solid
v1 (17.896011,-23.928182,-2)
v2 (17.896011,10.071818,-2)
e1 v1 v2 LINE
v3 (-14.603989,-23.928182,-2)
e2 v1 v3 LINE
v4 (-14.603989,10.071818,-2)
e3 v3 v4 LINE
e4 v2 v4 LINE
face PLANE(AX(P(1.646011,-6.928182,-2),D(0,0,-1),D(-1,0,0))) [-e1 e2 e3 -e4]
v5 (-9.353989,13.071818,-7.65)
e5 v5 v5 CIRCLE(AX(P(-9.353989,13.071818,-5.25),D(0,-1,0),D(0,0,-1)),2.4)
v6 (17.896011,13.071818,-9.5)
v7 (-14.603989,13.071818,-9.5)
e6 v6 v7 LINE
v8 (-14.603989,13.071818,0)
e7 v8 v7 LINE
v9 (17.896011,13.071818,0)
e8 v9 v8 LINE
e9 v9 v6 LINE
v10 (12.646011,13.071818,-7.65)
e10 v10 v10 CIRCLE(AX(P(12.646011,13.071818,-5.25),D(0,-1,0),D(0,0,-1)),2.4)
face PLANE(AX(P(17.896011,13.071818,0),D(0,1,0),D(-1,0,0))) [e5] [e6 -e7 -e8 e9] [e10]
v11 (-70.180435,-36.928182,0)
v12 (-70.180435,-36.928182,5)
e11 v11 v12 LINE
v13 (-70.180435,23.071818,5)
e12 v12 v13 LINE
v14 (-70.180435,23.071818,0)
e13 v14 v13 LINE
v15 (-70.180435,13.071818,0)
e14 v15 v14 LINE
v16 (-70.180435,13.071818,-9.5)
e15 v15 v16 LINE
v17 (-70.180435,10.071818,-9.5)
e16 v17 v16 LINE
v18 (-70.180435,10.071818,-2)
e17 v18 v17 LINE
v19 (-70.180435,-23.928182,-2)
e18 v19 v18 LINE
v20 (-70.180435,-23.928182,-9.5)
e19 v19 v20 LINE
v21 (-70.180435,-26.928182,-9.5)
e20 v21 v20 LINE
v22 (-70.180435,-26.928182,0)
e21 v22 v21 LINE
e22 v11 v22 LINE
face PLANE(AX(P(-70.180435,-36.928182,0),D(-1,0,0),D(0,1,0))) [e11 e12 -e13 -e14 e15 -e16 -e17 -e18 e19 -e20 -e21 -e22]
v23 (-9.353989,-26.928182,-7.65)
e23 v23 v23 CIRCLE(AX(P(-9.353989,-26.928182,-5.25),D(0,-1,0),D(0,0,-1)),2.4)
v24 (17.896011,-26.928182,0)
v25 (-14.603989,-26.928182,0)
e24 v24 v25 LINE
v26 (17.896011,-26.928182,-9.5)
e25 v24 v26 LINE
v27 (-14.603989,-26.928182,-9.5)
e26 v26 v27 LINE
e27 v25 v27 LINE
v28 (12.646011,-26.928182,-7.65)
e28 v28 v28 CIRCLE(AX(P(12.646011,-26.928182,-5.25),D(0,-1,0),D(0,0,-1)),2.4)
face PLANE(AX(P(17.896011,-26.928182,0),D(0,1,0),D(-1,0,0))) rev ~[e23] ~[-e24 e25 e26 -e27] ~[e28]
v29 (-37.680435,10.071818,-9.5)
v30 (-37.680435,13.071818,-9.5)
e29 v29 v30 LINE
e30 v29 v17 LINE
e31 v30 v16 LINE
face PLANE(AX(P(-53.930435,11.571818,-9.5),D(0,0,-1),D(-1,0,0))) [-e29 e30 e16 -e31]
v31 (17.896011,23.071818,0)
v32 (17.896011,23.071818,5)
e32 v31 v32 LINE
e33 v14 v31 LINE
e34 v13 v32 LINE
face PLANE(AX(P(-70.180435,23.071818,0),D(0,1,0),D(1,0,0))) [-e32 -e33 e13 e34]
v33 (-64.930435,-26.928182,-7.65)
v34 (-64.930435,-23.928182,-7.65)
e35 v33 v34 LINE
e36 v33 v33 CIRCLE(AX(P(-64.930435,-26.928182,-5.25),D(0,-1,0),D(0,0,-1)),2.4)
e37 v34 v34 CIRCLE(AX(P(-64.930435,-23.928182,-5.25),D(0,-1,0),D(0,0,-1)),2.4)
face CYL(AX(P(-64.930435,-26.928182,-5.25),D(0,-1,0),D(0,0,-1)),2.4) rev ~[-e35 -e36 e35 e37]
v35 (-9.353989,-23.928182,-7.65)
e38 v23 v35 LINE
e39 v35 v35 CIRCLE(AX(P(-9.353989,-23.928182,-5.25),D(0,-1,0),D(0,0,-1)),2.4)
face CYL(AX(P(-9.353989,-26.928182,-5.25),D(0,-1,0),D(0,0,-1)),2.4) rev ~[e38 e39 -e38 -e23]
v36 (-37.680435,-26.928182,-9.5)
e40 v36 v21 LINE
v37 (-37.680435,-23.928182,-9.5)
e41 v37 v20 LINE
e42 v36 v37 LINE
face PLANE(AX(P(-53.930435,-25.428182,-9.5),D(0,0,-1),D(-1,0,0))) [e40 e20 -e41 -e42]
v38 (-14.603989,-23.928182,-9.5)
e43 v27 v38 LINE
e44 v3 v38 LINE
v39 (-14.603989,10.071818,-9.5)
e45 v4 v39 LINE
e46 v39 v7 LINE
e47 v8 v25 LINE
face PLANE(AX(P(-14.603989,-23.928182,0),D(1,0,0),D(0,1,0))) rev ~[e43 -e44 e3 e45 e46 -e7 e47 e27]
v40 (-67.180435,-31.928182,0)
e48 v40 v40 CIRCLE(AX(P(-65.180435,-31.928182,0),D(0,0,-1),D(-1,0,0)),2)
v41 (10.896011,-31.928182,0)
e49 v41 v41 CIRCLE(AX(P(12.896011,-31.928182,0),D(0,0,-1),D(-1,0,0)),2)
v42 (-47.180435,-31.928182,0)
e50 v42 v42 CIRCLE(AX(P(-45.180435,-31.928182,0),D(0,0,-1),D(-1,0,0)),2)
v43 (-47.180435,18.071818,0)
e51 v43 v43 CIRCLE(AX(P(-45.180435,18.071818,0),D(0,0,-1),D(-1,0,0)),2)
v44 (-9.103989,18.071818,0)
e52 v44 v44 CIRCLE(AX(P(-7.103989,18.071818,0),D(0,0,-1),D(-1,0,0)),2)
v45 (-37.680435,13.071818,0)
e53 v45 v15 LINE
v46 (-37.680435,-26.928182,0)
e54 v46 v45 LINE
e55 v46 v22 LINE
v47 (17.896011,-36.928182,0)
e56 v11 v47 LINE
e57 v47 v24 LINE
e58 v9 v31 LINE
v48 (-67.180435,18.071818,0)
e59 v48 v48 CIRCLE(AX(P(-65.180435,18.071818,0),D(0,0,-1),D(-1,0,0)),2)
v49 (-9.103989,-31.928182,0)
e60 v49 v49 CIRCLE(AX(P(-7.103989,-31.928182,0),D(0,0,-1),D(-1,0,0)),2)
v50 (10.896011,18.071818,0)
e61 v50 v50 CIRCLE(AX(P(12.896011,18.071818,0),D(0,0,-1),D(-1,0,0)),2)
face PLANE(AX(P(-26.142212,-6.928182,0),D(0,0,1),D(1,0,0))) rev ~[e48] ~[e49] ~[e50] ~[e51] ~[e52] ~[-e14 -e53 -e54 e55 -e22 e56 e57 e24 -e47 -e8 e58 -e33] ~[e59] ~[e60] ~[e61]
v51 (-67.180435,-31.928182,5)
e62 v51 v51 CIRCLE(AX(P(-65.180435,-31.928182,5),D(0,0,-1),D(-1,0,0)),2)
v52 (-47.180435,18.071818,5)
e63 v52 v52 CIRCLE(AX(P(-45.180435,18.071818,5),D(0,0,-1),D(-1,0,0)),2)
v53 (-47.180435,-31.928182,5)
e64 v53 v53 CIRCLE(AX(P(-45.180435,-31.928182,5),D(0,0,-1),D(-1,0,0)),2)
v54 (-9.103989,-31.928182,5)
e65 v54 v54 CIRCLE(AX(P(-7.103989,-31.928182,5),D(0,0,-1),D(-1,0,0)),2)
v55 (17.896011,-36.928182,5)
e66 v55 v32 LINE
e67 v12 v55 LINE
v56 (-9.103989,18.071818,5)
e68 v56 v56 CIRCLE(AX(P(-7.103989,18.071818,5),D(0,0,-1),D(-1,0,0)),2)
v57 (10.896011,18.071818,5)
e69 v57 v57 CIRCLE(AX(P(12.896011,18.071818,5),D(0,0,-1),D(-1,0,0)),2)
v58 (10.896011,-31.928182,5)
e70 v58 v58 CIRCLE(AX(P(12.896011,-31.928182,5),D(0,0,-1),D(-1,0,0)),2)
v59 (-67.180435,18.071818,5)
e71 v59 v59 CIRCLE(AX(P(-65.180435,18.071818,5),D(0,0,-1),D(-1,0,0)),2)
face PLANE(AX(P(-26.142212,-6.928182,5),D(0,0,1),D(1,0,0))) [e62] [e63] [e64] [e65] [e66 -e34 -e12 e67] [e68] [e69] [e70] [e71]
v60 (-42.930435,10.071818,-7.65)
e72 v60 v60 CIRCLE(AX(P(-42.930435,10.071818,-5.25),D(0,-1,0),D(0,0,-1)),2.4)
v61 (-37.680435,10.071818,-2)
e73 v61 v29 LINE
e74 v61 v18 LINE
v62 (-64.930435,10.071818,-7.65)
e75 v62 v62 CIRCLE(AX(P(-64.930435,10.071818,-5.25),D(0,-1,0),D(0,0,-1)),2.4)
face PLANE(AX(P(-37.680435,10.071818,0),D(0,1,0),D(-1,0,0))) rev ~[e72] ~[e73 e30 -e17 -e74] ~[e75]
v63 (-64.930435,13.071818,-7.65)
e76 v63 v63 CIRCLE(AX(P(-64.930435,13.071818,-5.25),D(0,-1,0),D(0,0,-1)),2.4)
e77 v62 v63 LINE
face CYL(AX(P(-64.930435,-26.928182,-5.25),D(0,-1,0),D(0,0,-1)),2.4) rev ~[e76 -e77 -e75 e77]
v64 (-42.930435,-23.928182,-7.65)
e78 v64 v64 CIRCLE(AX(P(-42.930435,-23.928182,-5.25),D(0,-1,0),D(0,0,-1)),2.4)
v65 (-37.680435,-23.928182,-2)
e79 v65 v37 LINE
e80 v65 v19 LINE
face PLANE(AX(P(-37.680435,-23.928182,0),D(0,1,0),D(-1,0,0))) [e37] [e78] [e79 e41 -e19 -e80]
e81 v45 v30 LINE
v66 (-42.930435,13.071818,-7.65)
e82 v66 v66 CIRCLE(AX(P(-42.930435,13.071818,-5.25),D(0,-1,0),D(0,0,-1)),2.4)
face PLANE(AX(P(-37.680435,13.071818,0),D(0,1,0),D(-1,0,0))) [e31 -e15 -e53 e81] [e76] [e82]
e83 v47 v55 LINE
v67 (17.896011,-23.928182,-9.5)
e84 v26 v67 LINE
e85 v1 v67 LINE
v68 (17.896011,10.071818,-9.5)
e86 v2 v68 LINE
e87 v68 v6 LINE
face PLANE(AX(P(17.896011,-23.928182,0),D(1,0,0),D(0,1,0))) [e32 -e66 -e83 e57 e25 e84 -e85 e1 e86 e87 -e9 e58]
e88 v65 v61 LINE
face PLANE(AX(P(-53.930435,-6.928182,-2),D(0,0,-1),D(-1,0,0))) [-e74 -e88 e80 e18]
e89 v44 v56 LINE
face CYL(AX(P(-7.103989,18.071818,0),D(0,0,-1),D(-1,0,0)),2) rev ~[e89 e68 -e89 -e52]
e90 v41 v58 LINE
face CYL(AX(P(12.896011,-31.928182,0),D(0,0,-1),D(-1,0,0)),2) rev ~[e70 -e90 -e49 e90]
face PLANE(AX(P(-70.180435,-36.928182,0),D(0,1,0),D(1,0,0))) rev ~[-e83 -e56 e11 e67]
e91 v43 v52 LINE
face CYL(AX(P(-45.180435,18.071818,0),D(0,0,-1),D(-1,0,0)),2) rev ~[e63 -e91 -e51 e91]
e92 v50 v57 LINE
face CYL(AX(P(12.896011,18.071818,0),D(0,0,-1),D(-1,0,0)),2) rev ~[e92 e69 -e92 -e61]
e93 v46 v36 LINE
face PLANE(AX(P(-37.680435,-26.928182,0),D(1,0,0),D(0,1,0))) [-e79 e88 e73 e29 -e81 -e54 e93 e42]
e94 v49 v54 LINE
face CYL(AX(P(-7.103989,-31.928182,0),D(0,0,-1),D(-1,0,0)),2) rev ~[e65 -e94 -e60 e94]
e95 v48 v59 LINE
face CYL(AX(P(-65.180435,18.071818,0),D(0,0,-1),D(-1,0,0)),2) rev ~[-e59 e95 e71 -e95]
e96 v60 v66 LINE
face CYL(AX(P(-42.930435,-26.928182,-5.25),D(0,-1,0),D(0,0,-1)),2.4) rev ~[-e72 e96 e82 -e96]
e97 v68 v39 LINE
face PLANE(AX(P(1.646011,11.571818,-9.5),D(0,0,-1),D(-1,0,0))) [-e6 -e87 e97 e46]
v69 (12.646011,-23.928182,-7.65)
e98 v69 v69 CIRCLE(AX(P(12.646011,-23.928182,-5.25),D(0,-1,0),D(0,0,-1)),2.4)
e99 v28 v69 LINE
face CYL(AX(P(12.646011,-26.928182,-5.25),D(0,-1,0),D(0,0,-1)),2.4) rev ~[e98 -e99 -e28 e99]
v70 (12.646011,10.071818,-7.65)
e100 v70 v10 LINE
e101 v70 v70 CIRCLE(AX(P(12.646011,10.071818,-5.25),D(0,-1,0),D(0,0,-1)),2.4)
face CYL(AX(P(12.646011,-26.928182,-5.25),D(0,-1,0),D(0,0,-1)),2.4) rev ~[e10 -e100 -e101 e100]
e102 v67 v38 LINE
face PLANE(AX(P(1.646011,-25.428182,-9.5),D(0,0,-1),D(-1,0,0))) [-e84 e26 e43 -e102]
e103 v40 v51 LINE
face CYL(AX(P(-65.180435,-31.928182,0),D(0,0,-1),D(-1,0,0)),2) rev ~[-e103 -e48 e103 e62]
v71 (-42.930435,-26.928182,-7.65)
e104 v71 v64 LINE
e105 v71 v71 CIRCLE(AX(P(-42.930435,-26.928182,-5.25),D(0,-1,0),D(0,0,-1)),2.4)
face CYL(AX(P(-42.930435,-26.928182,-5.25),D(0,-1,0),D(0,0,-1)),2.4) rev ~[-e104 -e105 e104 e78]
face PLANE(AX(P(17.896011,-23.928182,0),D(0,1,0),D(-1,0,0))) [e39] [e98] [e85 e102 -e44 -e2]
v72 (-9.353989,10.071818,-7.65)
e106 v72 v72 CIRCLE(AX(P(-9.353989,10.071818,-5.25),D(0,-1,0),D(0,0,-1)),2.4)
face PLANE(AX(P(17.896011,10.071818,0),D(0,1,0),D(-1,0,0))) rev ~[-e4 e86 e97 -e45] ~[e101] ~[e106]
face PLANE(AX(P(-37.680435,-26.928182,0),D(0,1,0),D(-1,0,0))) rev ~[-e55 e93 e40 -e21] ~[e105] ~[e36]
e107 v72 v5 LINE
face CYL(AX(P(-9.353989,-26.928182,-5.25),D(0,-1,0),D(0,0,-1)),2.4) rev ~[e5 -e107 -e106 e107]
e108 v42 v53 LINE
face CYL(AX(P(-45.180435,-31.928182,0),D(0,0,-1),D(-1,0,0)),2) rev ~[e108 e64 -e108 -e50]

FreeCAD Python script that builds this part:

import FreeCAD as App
import Part
import Sketcher
Q = App.Units.Quantity

doc = App.newDocument("Part")
body = doc.addObject("PartDesign::Body", "Body")

# Sketch on XY plane
sketch1 = body.newObject("Sketcher::SketchObject", "Sketch")
sketch1.AttachmentSupport = (doc.getObject("XY_Plane"), [""])
sketch1.MapMode = "FlatFace"
sketch1.addGeometry(Part.LineSegment(App.Vector(-70, 23, 0), App.Vector(-70, -37, 0)), False)
sketch1.addGeometry(Part.LineSegment(App.Vector(-70, -37, 0), App.Vector(18, -37, 0)), False)
sketch1.addGeometry(Part.LineSegment(App.Vector(18, -37, 0), App.Vector(18, 23, 0)), False)
sketch1.addGeometry(Part.LineSegment(App.Vector(18, 23, 0), App.Vector(-70, 23, 0)), False)
sketch1.addConstraint(Sketcher.Constraint("Coincident", 0, 2, 1, 1))
sketch1.addConstraint(Sketcher.Constraint("Coincident", 1, 2, 2, 1))
sketch1.addConstraint(Sketcher.Constraint("Coincident", 2, 2, 3, 1))
sketch1.addConstraint(Sketcher.Constraint("Coincident", 3, 2, 0, 1))
sketch1.addConstraint(Sketcher.Constraint("Vertical", 0))
sketch1.addConstraint(Sketcher.Constraint("Horizontal", 1))
sketch1.addConstraint(Sketcher.Constraint("Vertical", 2))
sketch1.addConstraint(Sketcher.Constraint("Horizontal", 3))
sketch1.addConstraint(Sketcher.Constraint("DistanceY", 0, 2, 0, 1, Q("60 mm")))
sketch1.addConstraint(Sketcher.Constraint("DistanceX", 1, 1, 1, 2, Q("88.076447 mm")))
sketch1.addConstraint(Sketcher.Constraint("DistanceY", 0, 2, -1, 1, Q("36.928182 mm")))
sketch1.addConstraint(Sketcher.Constraint("DistanceX", -1, 1, 1, 2, Q("17.896011 mm")))
pad1 = body.newObject("PartDesign::Pad", "Pad")
pad1.Profile = sketch1
pad1.Length = 5

# Sketch on XY plane
sketch2 = body.newObject("Sketcher::SketchObject", "Sketch001")
sketch2.AttachmentSupport = (doc.getObject("XY_Plane"), [""])
sketch2.MapMode = "FlatFace"
sketch2.addGeometry(Part.LineSegment(App.Vector(17.9, 13.1, 0), App.Vector(17.9, 10.1, 0)), False)
sketch2.addGeometry(Part.LineSegment(App.Vector(17.9, 10.1, 0), App.Vector(-14.6, 10.1, 0)), False)
sketch2.addGeometry(Part.LineSegment(App.Vector(-14.6, 10.1, 0), App.Vector(-14.6, 13.1, 0)), False)
sketch2.addGeometry(Part.LineSegment(App.Vector(-14.6, 13.1, 0), App.Vector(17.9, 13.1, 0)), False)
sketch2.addGeometry(Part.LineSegment(App.Vector(-37.7, 13.1, 0), App.Vector(-37.7, 10.1, 0)), False)
sketch2.addGeometry(Part.LineSegment(App.Vector(-37.7, 10.1, 0), App.Vector(-70.2, 10.1, 0)), False)
sketch2.addGeometry(Part.LineSegment(App.Vector(-70.2, 10.1, 0), App.Vector(-70.2, 13.1, 0)), False)
sketch2.addGeometry(Part.LineSegment(App.Vector(-70.2, 13.1, 0), App.Vector(-37.7, 13.1, 0)), False)
sketch2.addGeometry(Part.LineSegment(App.Vector(17.9, -23.9, 0), App.Vector(17.9, -26.9, 0)), False)
sketch2.addGeometry(Part.LineSegment(App.Vector(17.9, -26.9, 0), App.Vector(-14.6, -26.9, 0)), False)
sketch2.addGeometry(Part.LineSegment(App.Vector(-14.6, -26.9, 0), App.Vector(-14.6, -23.9, 0)), False)
sketch2.addGeometry(Part.LineSegment(App.Vector(-14.6, -23.9, 0), App.Vector(17.9, -23.9, 0)), False)
sketch2.addGeometry(Part.LineSegment(App.Vector(-37.7, -23.9, 0), App.Vector(-37.7, -26.9, 0)), False)
sketch2.addGeometry(Part.LineSegment(App.Vector(-37.7, -26.9, 0), App.Vector(-70.2, -26.9, 0)), False)
sketch2.addGeometry(Part.LineSegment(App.Vector(-70.2, -26.9, 0), App.Vector(-70.2, -23.9, 0)), False)
sketch2.addGeometry(Part.LineSegment(App.Vector(-70.2, -23.9, 0), App.Vector(-37.7, -23.9, 0)), False)
sketch2.addConstraint(Sketcher.Constraint("Coincident", 0, 2, 1, 1))
sketch2.addConstraint(Sketcher.Constraint("Coincident", 1, 2, 2, 1))
sketch2.addConstraint(Sketcher.Constraint("Coincident", 2, 2, 3, 1))
sketch2.addConstraint(Sketcher.Constraint("Coincident", 3, 2, 0, 1))
sketch2.addConstraint(Sketcher.Constraint("Coincident", 4, 2, 5, 1))
sketch2.addConstraint(Sketcher.Constraint("Coincident", 5, 2, 6, 1))
sketch2.addConstraint(Sketcher.Constraint("Coincident", 6, 2, 7, 1))
sketch2.addConstraint(Sketcher.Constraint("Coincident", 7, 2, 4, 1))
sketch2.addConstraint(Sketcher.Constraint("Coincident", 8, 2, 9, 1))
sketch2.addConstraint(Sketcher.Constraint("Coincident", 9, 2, 10, 1))
sketch2.addConstraint(Sketcher.Constraint("Coincident", 10, 2, 11, 1))
sketch2.addConstraint(Sketcher.Constraint("Coincident", 11, 2, 8, 1))
sketch2.addConstraint(Sketcher.Constraint("Coincident", 12, 2, 13, 1))
sketch2.addConstraint(Sketcher.Constraint("Coincident", 13, 2, 14, 1))
sketch2.addConstraint(Sketcher.Constraint("Coincident", 14, 2, 15, 1))
sketch2.addConstraint(Sketcher.Constraint("Coincident", 15, 2, 12, 1))
sketch2.addConstraint(Sketcher.Constraint("Vertical", 0))
sketch2.addConstraint(Sketcher.Constraint("Horizontal", 1))
sketch2.addConstraint(Sketcher.Constraint("Vertical", 2))
sketch2.addConstraint(Sketcher.Constraint("Horizontal", 3))
sketch2.addConstraint(Sketcher.Constraint("Vertical", 4))
sketch2.addConstraint(Sketcher.Constraint("Horizontal", 5))
sketch2.addConstraint(Sketcher.Constraint("Vertical", 6))
sketch2.addConstraint(Sketcher.Constraint("Horizontal", 7))
sketch2.addConstraint(Sketcher.Constraint("Vertical", 8))
sketch2.addConstraint(Sketcher.Constraint("Horizontal", 9))
sketch2.addConstraint(Sketcher.Constraint("Vertical", 10))
sketch2.addConstraint(Sketcher.Constraint("Horizontal", 11))
sketch2.addConstraint(Sketcher.Constraint("Vertical", 12))
sketch2.addConstraint(Sketcher.Constraint("Horizontal", 13))
sketch2.addConstraint(Sketcher.Constraint("Vertical", 14))
sketch2.addConstraint(Sketcher.Constraint("Horizontal", 15))
sketch2.addConstraint(Sketcher.Constraint("Horizontal", 1, 2, 4, 2))
sketch2.addConstraint(Sketcher.Constraint("Horizontal", 3, 2, 6, 2))
sketch2.addConstraint(Sketcher.Constraint("Horizontal", 9, 2, 12, 2))
sketch2.addConstraint(Sketcher.Constraint("Horizontal", 11, 2, 14, 2))
sketch2.addConstraint(Sketcher.Constraint("Vertical", 3, 2, 8, 2))
sketch2.addConstraint(Sketcher.Constraint("Vertical", 2, 2, 9, 2))
sketch2.addConstraint(Sketcher.Constraint("Vertical", 7, 2, 12, 2))
sketch2.addConstraint(Sketcher.Constraint("Vertical", 6, 2, 13, 2))
sketch2.addConstraint(Sketcher.Constraint("Equal", 3, 5))
sketch2.addConstraint(Sketcher.Constraint("Equal", 6, 8))
sketch2.addConstraint(Sketcher.Constraint("DistanceY", 0, 2, 0, 1, Q("3 mm")))
sketch2.addConstraint(Sketcher.Constraint("DistanceX", 1, 2, 1, 1, Q("32.5 mm")))
sketch2.addConstraint(Sketcher.Constraint("DistanceY", 8, 2, 0, 2, Q("37 mm")))
sketch2.addConstraint(Sketcher.Constraint("DistanceX", -1, 1, 0, 2, Q("17.896011 mm")))
sketch2.addConstraint(Sketcher.Constraint("DistanceY", -1, 1, 0, 2, Q("10.071818 mm")))
sketch2.addConstraint(Sketcher.Constraint("DistanceX", 4, 2, -1, 1, Q("37.680435 mm")))
pad2 = body.newObject("PartDesign::Pad", "Pad001")
pad2.Profile = sketch2
pad2.Length = 9.5
pad2.Reversed = True

# Sketch on XZ plane
sketch3 = body.newObject("Sketcher::SketchObject", "Sketch002")
sketch3.AttachmentSupport = (doc.getObject("XZ_Plane"), [""])
sketch3.MapMode = "FlatFace"
sketch3.AttachmentOffset = App.Placement(App.Vector(0, 0, 26.928182), App.Rotation())
sketch3.addGeometry(Part.Circle(App.Vector(12.6, -5.2, 0), App.Vector(0, 0, 1), 2.4), False)
sketch3.addGeometry(Part.Circle(App.Vector(-9.4, -5.2, 0), App.Vector(0, 0, 1), 2.4), False)
sketch3.addGeometry(Part.Circle(App.Vector(-42.9, -5.2, 0), App.Vector(0, 0, 1), 2.4), False)
sketch3.addGeometry(Part.Circle(App.Vector(-64.9, -5.2, 0), App.Vector(0, 0, 1), 2.4), False)
sketch3.addConstraint(Sketcher.Constraint("Equal", 0, 1))
sketch3.addConstraint(Sketcher.Constraint("Equal", 1, 2))
sketch3.addConstraint(Sketcher.Constraint("Equal", 2, 3))
sketch3.addConstraint(Sketcher.Constraint("Horizontal", 0, 3, 1, 3))
sketch3.addConstraint(Sketcher.Constraint("Horizontal", 1, 3, 2, 3))
sketch3.addConstraint(Sketcher.Constraint("Horizontal", 2, 3, 3, 3))
sketch3.addConstraint(Sketcher.Constraint("Diameter", 0, Q("4.8 mm")))
sketch3.addConstraint(Sketcher.Constraint("DistanceX", 1, 3, 0, 3, Q("22 mm")))
sketch3.addConstraint(Sketcher.Constraint("DistanceX", 3, 3, 2, 3, Q("22 mm")))
sketch3.addConstraint(Sketcher.Constraint("DistanceY", 0, 3, -1, 1, Q("5.25 mm")))
sketch3.addConstraint(Sketcher.Constraint("DistanceX", -1, 1, 0, 3, Q("12.646011 mm")))
sketch3.addConstraint(Sketcher.Constraint("DistanceX", 2, 3, -1, 1, Q("42.930435 mm")))
pocket1 = body.newObject("PartDesign::Pocket", "Pocket")
pocket1.Profile = sketch3
pocket1.Length = 100

# Sketch on XY plane
sketch4 = body.newObject("Sketcher::SketchObject", "Sketch003")
sketch4.AttachmentSupport = (doc.getObject("XY_Plane"), [""])
sketch4.MapMode = "FlatFace"
sketch4.addGeometry(Part.LineSegment(App.Vector(18, 10, 0), App.Vector(18, -24, 0)), False)
sketch4.addGeometry(Part.LineSegment(App.Vector(18, -24, 0), App.Vector(-15, -24, 0)), False)
sketch4.addGeometry(Part.LineSegment(App.Vector(-15, -24, 0), App.Vector(-15, 10, 0)), False)
sketch4.addGeometry(Part.LineSegment(App.Vector(-15, 10, 0), App.Vector(18, 10, 0)), False)
sketch4.addGeometry(Part.LineSegment(App.Vector(-38, 10, 0), App.Vector(-38, -24, 0)), False)
sketch4.addGeometry(Part.LineSegment(App.Vector(-38, -24, 0), App.Vector(-70, -24, 0)), False)
sketch4.addGeometry(Part.LineSegment(App.Vector(-70, -24, 0), App.Vector(-70, 10, 0)), False)
sketch4.addGeometry(Part.LineSegment(App.Vector(-70, 10, 0), App.Vector(-38, 10, 0)), False)
sketch4.addConstraint(Sketcher.Constraint("Coincident", 0, 2, 1, 1))
sketch4.addConstraint(Sketcher.Constraint("Coincident", 1, 2, 2, 1))
sketch4.addConstraint(Sketcher.Constraint("Coincident", 2, 2, 3, 1))
sketch4.addConstraint(Sketcher.Constraint("Coincident", 3, 2, 0, 1))
sketch4.addConstraint(Sketcher.Constraint("Coincident", 4, 2, 5, 1))
sketch4.addConstraint(Sketcher.Constraint("Coincident", 5, 2, 6, 1))
sketch4.addConstraint(Sketcher.Constraint("Coincident", 6, 2, 7, 1))
sketch4.addConstraint(Sketcher.Constraint("Coincident", 7, 2, 4, 1))
sketch4.addConstraint(Sketcher.Constraint("Vertical", 0))
sketch4.addConstraint(Sketcher.Constraint("Horizontal", 1))
sketch4.addConstraint(Sketcher.Constraint("Vertical", 2))
sketch4.addConstraint(Sketcher.Constraint("Horizontal", 3))
sketch4.addConstraint(Sketcher.Constraint("Vertical", 4))
sketch4.addConstraint(Sketcher.Constraint("Horizontal", 5))
sketch4.addConstraint(Sketcher.Constraint("Vertical", 6))
sketch4.addConstraint(Sketcher.Constraint("Horizontal", 7))
sketch4.addConstraint(Sketcher.Constraint("Horizontal", 1, 2, 4, 2))
sketch4.addConstraint(Sketcher.Constraint("Horizontal", 3, 2, 6, 2))
sketch4.addConstraint(Sketcher.Constraint("Equal", 3, 5))
sketch4.addConstraint(Sketcher.Constraint("DistanceY", 0, 2, 0, 1, Q("34 mm")))
sketch4.addConstraint(Sketcher.Constraint("DistanceX", 1, 2, 1, 1, Q("32.5 mm")))
sketch4.addConstraint(Sketcher.Constraint("DistanceX", -1, 1, 0, 2, Q("17.896011 mm")))
sketch4.addConstraint(Sketcher.Constraint("DistanceY", 0, 2, -1, 1, Q("23.928182 mm")))
sketch4.addConstraint(Sketcher.Constraint("DistanceX", 4, 2, -1, 1, Q("37.680435 mm")))
pad3 = body.newObject("PartDesign::Pad", "Pad002")
pad3.Profile = sketch4
pad3.Length = 2
pad3.Reversed = True

# Sketch on XY plane
sketch5 = body.newObject("Sketcher::SketchObject", "Sketch004")
sketch5.AttachmentSupport = (doc.getObject("XY_Plane"), [""])
sketch5.MapMode = "FlatFace"
sketch5.addGeometry(Part.Circle(App.Vector(12.9, 18.1, 0), App.Vector(0, 0, 1), 2), False)
sketch5.addGeometry(Part.Circle(App.Vector(12.9, -31.9, 0), App.Vector(0, 0, 1), 2), False)
sketch5.addGeometry(Part.Circle(App.Vector(-7.1, 18.1, 0), App.Vector(0, 0, 1), 2), False)
sketch5.addGeometry(Part.Circle(App.Vector(-7.1, -31.9, 0), App.Vector(0, 0, 1), 2), False)
sketch5.addGeometry(Part.Circle(App.Vector(-65.2, 18.1, 0), App.Vector(0, 0, 1), 2), False)
sketch5.addGeometry(Part.Circle(App.Vector(-65.2, -31.9, 0), App.Vector(0, 0, 1), 2), False)
sketch5.addGeometry(Part.Circle(App.Vector(-45.2, 18.1, 0), App.Vector(0, 0, 1), 2), False)
sketch5.addGeometry(Part.Circle(App.Vector(-45.2, -31.9, 0), App.Vector(0, 0, 1), 2), False)
sketch5.addConstraint(Sketcher.Constraint("Equal", 0, 1))
sketch5.addConstraint(Sketcher.Constraint("Equal", 1, 2))
sketch5.addConstraint(Sketcher.Constraint("Equal", 2, 3))
sketch5.addConstraint(Sketcher.Constraint("Equal", 3, 4))
sketch5.addConstraint(Sketcher.Constraint("Equal", 4, 5))
sketch5.addConstraint(Sketcher.Constraint("Equal", 5, 6))
sketch5.addConstraint(Sketcher.Constraint("Equal", 6, 7))
sketch5.addConstraint(Sketcher.Constraint("Horizontal", 0, 3, 2, 3))
sketch5.addConstraint(Sketcher.Constraint("Horizontal", 1, 3, 3, 3))
sketch5.addConstraint(Sketcher.Constraint("Horizontal", 2, 3, 4, 3))
sketch5.addConstraint(Sketcher.Constraint("Horizontal", 3, 3, 5, 3))
sketch5.addConstraint(Sketcher.Constraint("Horizontal", 4, 3, 6, 3))
sketch5.addConstraint(Sketcher.Constraint("Horizontal", 5, 3, 7, 3))
sketch5.addConstraint(Sketcher.Constraint("Vertical", 0, 3, 1, 3))
sketch5.addConstraint(Sketcher.Constraint("Vertical", 2, 3, 3, 3))
sketch5.addConstraint(Sketcher.Constraint("Vertical", 4, 3, 5, 3))
sketch5.addConstraint(Sketcher.Constraint("Vertical", 6, 3, 7, 3))
sketch5.addConstraint(Sketcher.Constraint("Diameter", 0, Q("4 mm")))
sketch5.addConstraint(Sketcher.Constraint("DistanceY", 1, 3, 0, 3, Q("50 mm")))
sketch5.addConstraint(Sketcher.Constraint("DistanceX", 2, 3, 0, 3, Q("20 mm")))
sketch5.addConstraint(Sketcher.Constraint("DistanceX", 4, 3, 6, 3, Q("20 mm")))
sketch5.addConstraint(Sketcher.Constraint("DistanceX", -1, 1, 0, 3, Q("12.896011 mm")))
sketch5.addConstraint(Sketcher.Constraint("DistanceY", -1, 1, 0, 3, Q("18.071818 mm")))
sketch5.addConstraint(Sketcher.Constraint("DistanceX", 4, 3, -1, 1, Q("65.180435 mm")))
pocket2 = body.newObject("PartDesign::Pocket", "Pocket001")
pocket2.Profile = sketch5
pocket2.Length = 10
pocket2.Reversed = True

doc.recompute()
